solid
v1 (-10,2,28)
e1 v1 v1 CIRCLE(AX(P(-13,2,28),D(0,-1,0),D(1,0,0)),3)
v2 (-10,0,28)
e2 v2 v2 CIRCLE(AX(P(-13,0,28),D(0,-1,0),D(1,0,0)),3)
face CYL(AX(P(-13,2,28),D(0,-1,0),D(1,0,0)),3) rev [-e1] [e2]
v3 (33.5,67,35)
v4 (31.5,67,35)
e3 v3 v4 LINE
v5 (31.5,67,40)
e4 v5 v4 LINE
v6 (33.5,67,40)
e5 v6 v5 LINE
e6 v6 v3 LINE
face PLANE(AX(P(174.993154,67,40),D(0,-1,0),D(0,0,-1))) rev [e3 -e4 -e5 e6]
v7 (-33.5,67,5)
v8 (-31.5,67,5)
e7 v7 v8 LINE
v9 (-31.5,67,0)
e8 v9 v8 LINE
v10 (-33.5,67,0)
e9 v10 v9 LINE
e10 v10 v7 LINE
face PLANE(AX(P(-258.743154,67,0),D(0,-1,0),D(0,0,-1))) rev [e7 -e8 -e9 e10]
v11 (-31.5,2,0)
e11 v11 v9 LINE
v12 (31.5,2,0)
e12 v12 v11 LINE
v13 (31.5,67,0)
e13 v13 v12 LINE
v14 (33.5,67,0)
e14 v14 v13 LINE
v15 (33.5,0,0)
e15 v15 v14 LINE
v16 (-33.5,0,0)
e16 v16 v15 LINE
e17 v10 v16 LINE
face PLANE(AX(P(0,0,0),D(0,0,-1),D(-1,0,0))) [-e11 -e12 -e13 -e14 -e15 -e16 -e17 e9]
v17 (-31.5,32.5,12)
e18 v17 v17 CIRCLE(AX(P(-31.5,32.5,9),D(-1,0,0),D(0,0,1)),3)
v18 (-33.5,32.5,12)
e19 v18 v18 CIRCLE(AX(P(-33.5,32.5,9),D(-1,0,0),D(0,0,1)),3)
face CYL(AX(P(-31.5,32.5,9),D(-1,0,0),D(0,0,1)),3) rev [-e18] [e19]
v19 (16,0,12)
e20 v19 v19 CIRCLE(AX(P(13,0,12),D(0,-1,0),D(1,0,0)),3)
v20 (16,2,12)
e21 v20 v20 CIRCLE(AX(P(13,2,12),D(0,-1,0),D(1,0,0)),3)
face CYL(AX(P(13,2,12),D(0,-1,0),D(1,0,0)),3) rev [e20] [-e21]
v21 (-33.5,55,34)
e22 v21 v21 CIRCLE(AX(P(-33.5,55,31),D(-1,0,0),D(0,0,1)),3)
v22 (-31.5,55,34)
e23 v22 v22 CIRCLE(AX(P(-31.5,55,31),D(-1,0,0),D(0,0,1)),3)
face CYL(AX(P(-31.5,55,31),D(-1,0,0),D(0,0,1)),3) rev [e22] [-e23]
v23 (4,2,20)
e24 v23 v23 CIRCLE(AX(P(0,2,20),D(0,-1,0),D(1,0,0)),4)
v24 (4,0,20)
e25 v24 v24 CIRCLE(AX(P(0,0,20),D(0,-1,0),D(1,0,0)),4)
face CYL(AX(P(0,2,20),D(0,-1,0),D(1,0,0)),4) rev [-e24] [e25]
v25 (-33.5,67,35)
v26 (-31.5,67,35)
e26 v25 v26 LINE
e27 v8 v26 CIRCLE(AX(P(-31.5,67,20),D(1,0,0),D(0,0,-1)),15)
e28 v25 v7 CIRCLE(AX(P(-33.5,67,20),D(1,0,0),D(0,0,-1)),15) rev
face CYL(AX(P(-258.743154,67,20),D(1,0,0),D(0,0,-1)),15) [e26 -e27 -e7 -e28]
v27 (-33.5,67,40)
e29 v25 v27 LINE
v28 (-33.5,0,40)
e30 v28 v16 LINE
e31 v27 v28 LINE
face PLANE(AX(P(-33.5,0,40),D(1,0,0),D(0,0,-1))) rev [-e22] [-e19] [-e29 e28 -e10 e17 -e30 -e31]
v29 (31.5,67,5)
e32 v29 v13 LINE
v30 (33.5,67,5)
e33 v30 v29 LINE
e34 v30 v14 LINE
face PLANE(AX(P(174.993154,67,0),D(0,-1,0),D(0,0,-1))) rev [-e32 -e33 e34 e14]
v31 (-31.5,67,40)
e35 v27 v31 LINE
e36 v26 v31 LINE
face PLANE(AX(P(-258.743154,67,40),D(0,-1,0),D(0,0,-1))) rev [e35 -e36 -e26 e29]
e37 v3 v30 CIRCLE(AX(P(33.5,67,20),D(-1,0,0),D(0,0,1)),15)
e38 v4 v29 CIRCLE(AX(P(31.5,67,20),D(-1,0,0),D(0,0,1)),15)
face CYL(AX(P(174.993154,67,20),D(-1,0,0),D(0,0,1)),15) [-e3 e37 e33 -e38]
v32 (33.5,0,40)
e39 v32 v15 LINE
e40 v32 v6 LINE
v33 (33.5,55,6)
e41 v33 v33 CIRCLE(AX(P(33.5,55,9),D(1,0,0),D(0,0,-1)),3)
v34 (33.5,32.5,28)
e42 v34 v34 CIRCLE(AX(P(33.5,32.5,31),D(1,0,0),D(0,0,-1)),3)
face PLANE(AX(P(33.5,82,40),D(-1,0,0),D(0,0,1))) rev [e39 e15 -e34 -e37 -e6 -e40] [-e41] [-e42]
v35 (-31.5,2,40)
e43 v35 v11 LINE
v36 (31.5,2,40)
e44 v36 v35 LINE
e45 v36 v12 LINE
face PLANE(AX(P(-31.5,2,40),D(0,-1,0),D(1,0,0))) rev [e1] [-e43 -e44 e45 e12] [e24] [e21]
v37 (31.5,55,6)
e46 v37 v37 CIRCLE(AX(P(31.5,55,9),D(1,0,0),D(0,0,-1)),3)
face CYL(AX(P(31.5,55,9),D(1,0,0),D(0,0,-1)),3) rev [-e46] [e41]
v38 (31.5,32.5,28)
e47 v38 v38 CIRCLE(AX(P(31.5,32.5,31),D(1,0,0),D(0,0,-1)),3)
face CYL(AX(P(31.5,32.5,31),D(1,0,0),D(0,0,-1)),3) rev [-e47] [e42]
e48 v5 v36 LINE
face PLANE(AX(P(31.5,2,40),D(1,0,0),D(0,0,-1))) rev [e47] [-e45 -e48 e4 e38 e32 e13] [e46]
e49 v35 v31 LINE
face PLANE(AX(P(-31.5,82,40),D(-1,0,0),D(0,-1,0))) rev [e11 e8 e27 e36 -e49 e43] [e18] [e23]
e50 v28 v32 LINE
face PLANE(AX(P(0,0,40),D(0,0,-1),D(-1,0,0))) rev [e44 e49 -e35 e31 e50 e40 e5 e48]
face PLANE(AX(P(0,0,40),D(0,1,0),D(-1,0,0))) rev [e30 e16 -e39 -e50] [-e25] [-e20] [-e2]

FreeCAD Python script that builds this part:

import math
import FreeCAD as App
import Part
import Sketcher

V = App.Vector

doc = App.newDocument("Part")
body = doc.addObject("PartDesign::Body", "Body")

# Sketch on XY plane
sketch1 = body.newObject("Sketcher::SketchObject", "Sketch")
sketch1.AttachmentSupport = (doc.getObject("XY_Plane"), [""])
sketch1.MapMode = "FlatFace"
sketch1.addGeometry([
    Part.LineSegment(V(-33.5, 0, 0), V(33.5, 0, 0)),  # 0
    Part.LineSegment(V(33.5, 0, 0), V(33.5, 82, 0)),  # 1
    Part.LineSegment(V(33.5, 82, 0), V(31.5, 82, 0)),  # 2
    Part.LineSegment(V(31.5, 82, 0), V(31.5, 2, 0)),  # 3
    Part.LineSegment(V(31.5, 2, 0), V(-31.5, 2, 0)),  # 4
    Part.LineSegment(V(-31.5, 2, 0), V(-31.5, 82, 0)),  # 5
    Part.LineSegment(V(-31.5, 82, 0), V(-33.5, 82, 0)),  # 6
    Part.LineSegment(V(-33.5, 82, 0), V(-33.5, 0, 0)),  # 7
], False)
sketch1.addConstraint([
    Sketcher.Constraint("Coincident", 0, 2, 1, 1),
    Sketcher.Constraint("Coincident", 1, 2, 2, 1),
    Sketcher.Constraint("Coincident", 2, 2, 3, 1),
    Sketcher.Constraint("Coincident", 3, 2, 4, 1),
    Sketcher.Constraint("Coincident", 4, 2, 5, 1),
    Sketcher.Constraint("Coincident", 5, 2, 6, 1),
    Sketcher.Constraint("Coincident", 6, 2, 7, 1),
    Sketcher.Constraint("Coincident", 7, 2, 0, 1),
    Sketcher.Constraint("Horizontal", 0),
    Sketcher.Constraint("Vertical", 1),
    Sketcher.Constraint("Horizontal", 2),
    Sketcher.Constraint("Vertical", 3),
    Sketcher.Constraint("Horizontal", 4),
    Sketcher.Constraint("Vertical", 5),
    Sketcher.Constraint("Horizontal", 6),
    Sketcher.Constraint("Vertical", 7),
    Sketcher.Constraint("Symmetric", 0, 2, 7, 2, -1, 1),
    Sketcher.Constraint("Symmetric", 2, 2, 5, 2, -2),
    Sketcher.Constraint("DistanceX", 0, 1, 0, 2, 67.0),
    Sketcher.Constraint("DistanceX", 2, 2, 2, 1, 2.0),
    Sketcher.Constraint("DistanceY", 1, 1, 1, 2, 82.0),
    Sketcher.Constraint("DistanceY", 3, 2, 3, 1, 80.0),
])
pad1 = body.newObject("PartDesign::Pad", "Pad")
pad1.Profile = sketch1
pad1.Length = 40

# Sketch on XZ plane
sketch2 = body.newObject("Sketcher::SketchObject", "Sketch001")
sketch2.AttachmentSupport = (doc.getObject("XZ_Plane"), [""])
sketch2.MapMode = "FlatFace"
sketch2.addGeometry([
    Part.Circle(V(0, 20, 0), V(0, 0, 1), 4),
    Part.Circle(V(-13, 28, 0), V(0, 0, 1), 3),
    Part.Circle(V(13, 12, 0), V(0, 0, 1), 3),
], False)
sketch2.addConstraint([
    Sketcher.Constraint("Equal", 1, 2),
    Sketcher.Constraint("PointOnObject", 0, 3, -2),
    Sketcher.Constraint("Diameter", 0, 8.0),
    Sketcher.Constraint("Diameter", 1, 6.0),
    Sketcher.Constraint("DistanceY", -1, 1, 0, 3, 20.0),
    Sketcher.Constraint("DistanceX", 1, 3, -1, 1, 13.0),
    Sketcher.Constraint("DistanceY", -1, 1, 1, 3, 28.0),
    Sketcher.Constraint("DistanceX", -1, 1, 2, 3, 13.0),
    Sketcher.Constraint("DistanceY", -1, 1, 2, 3, 12.0),
])
pocket1 = body.newObject("PartDesign::Pocket", "Pocket")
pocket1.Profile = sketch2
pocket1.Length = 2

# Sketch on YZ plane
sketch3 = body.newObject("Sketcher::SketchObject", "Sketch002")
sketch3.AttachmentSupport = (doc.getObject("YZ_Plane"), [""])
sketch3.MapMode = "FlatFace"
sketch3.AttachmentOffset = App.Placement(V(0, 0, 33.5), App.Rotation())
sketch3.addGeometry([
    Part.LineSegment(V(67, 206, 0), V(67, 35, 0)),  # 0
    Part.ArcOfCircle(Part.Circle(V(67, 20, 0), V(0, 0, 1), 15), math.radians(-90), math.radians(90)),  # 1
    Part.LineSegment(V(67, 5, 0), V(67, -166, 0)),  # 2
    Part.LineSegment(V(67, -166, 0), V(399, -166, 0)),  # 3
    Part.LineSegment(V(399, -166, 0), V(399, 206, 0)),  # 4
    Part.LineSegment(V(399, 206, 0), V(67, 206, 0)),  # 5
], False)
sketch3.addConstraint([
    Sketcher.Constraint("Coincident", 0, 2, 1, 2),
    Sketcher.Constraint("Coincident", 1, 1, 2, 1),
    Sketcher.Constraint("Coincident", 2, 2, 3, 1),
    Sketcher.Constraint("Coincident", 3, 2, 4, 1),
    Sketcher.Constraint("Coincident", 4, 2, 5, 1),
    Sketcher.Constraint("Coincident", 5, 2, 0, 1),
    Sketcher.Constraint("Vertical", 0),
    Sketcher.Constraint("Vertical", 2),
    Sketcher.Constraint("Horizontal", 3),
    Sketcher.Constraint("Vertical", 4),
    Sketcher.Constraint("Horizontal", 5),
    Sketcher.Constraint("Vertical", 1, 3, 0, 2),
    Sketcher.Constraint("Vertical", 0, 2, 1, 1),
    Sketcher.Constraint("Equal", 0, 2),
    Sketcher.Constraint("Radius", 1, 15.0),
    Sketcher.Constraint("DistanceX", -1, 1, 1, 3, 67.0),
    Sketcher.Constraint("DistanceY", -1, 1, 1, 3, 20.0),
    Sketcher.Constraint("DistanceX", 3, 1, 3, 2, 332.128179),
    Sketcher.Constraint("DistanceY", 0, 2, 0, 1, 171.064089),
])
pocket2 = body.newObject("PartDesign::Pocket", "Pocket001")
pocket2.Profile = sketch3
pocket2.Type = "TwoLengths"
pocket2.Length = 114.194523
pocket2.Length2 = 2
pocket2.Reversed = True

# Sketch on YZ plane
sketch4 = body.newObject("Sketcher::SketchObject", "Sketch003")
sketch4.AttachmentSupport = (doc.getObject("YZ_Plane"), [""])
sketch4.MapMode = "FlatFace"
sketch4.AttachmentOffset = App.Placement(V(0, 0, 33.5), App.Rotation())
sketch4.addGeometry([
    Part.Circle(V(55, 9, 0), V(0, 0, 1), 3),
    Part.Circle(V(32.5, 31, 0), V(0, 0, 1), 3),
], False)
sketch4.addConstraint([
    Sketcher.Constraint("Equal", 0, 1),
    Sketcher.Constraint("Diameter", 0, 6.0),
    Sketcher.Constraint("DistanceX", -1, 1, 0, 3, 55.0),
    Sketcher.Constraint("DistanceY", -1, 1, 0, 3, 9.0),
    Sketcher.Constraint("DistanceY", -1, 1, 1, 3, 31.0),
    Sketcher.Constraint("DistanceX", -1, 1, 1, 3, 32.5),
])
pocket3 = body.newObject("PartDesign::Pocket", "Pocket002")
pocket3.Profile = sketch4
pocket3.Length = 2

# Sketch on YZ plane
sketch5 = body.newObject("Sketcher::SketchObject", "Sketch004")
sketch5.AttachmentSupport = (doc.getObject("YZ_Plane"), [""])
sketch5.MapMode = "FlatFace"
sketch5.AttachmentOffset = App.Placement(V(0, 0, -33.5), App.Rotation())
sketch5.addGeometry([
    Part.Circle(V(32.5, 9, 0), V(0, 0, 1), 3),
    Part.Circle(V(55, 31, 0), V(0, 0, 1), 3),
], False)
sketch5.addConstraint([
    Sketcher.Constraint("Equal", 0, 1),
    Sketcher.Constraint("Diameter", 0, 6.0),
    Sketcher.Constraint("DistanceY", -1, 1, 0, 3, 9.0),
    Sketcher.Constraint("DistanceX", -1, 1, 1, 3, 55.0),
    Sketcher.Constraint("DistanceY", -1, 1, 1, 3, 31.0),
    Sketcher.Constraint("DistanceX", -1, 1, 0, 3, 32.5),
])
pocket4 = body.newObject("PartDesign::Pocket", "Pocket003")
pocket4.Profile = sketch5
pocket4.Length = 2
pocket4.Reversed = True

# Sketch on YZ plane
sketch6 = body.newObject("Sketcher::SketchObject", "Sketch005")
sketch6.AttachmentSupport = (doc.getObject("YZ_Plane"), [""])
sketch6.MapMode = "FlatFace"
sketch6.AttachmentOffset = App.Placement(V(0, 0, -33.5), App.Rotation())
sketch6.addGeometry([
    Part.LineSegment(V(67, -166, 0), V(67, 5, 0)),  # 0
    Part.ArcOfCircle(Part.Circle(V(67, 20, 0), V(0, 0, 1), 15), math.radians(-90), math.radians(90)),  # 1
    Part.LineSegment(V(67, 35, 0), V(67, 206, 0)),  # 2
    Part.LineSegment(V(67, 206, 0), V(399, 206, 0)),  # 3
    Part.LineSegment(V(399, 206, 0), V(399, -166, 0)),  # 4
    Part.LineSegment(V(399, -166, 0), V(67, -166, 0)),  # 5
], False)
sketch6.addConstraint([
    Sketcher.Constraint("Coincident", 0, 2, 1, 1),
    Sketcher.Constraint("Coincident", 1, 2, 2, 1),
    Sketcher.Constraint("Coincident", 2, 2, 3, 1),
    Sketcher.Constraint("Coincident", 3, 2, 4, 1),
    Sketcher.Constraint("Coincident", 4, 2, 5, 1),
    Sketcher.Constraint("Coincident", 5, 2, 0, 1),
    Sketcher.Constraint("Vertical", 0),
    Sketcher.Constraint("Vertical", 2),
    Sketcher.Constraint("Horizontal", 3),
    Sketcher.Constraint("Vertical", 4),
    Sketcher.Constraint("Horizontal", 5),
    Sketcher.Constraint("Vertical", 1, 3, 0, 2),
    Sketcher.Constraint("Vertical", 0, 2, 1, 2),
    Sketcher.Constraint("Equal", 0, 2),
    Sketcher.Constraint("Radius", 1, 15.0),
    Sketcher.Constraint("DistanceX", -1, 1, 1, 3, 67.0),
    Sketcher.Constraint("DistanceY", -1, 1, 1, 3, 20.0),
    Sketcher.Constraint("DistanceX", 3, 1, 3, 2, 332.128179),
    Sketcher.Constraint("DistanceY", 0, 1, 0, 2, 171.064089),
])
pocket5 = body.newObject("PartDesign::Pocket", "Pocket004")
pocket5.Profile = sketch6
pocket5.Type = "ThroughAll"
pocket5.Midplane = True

doc.recompute()
